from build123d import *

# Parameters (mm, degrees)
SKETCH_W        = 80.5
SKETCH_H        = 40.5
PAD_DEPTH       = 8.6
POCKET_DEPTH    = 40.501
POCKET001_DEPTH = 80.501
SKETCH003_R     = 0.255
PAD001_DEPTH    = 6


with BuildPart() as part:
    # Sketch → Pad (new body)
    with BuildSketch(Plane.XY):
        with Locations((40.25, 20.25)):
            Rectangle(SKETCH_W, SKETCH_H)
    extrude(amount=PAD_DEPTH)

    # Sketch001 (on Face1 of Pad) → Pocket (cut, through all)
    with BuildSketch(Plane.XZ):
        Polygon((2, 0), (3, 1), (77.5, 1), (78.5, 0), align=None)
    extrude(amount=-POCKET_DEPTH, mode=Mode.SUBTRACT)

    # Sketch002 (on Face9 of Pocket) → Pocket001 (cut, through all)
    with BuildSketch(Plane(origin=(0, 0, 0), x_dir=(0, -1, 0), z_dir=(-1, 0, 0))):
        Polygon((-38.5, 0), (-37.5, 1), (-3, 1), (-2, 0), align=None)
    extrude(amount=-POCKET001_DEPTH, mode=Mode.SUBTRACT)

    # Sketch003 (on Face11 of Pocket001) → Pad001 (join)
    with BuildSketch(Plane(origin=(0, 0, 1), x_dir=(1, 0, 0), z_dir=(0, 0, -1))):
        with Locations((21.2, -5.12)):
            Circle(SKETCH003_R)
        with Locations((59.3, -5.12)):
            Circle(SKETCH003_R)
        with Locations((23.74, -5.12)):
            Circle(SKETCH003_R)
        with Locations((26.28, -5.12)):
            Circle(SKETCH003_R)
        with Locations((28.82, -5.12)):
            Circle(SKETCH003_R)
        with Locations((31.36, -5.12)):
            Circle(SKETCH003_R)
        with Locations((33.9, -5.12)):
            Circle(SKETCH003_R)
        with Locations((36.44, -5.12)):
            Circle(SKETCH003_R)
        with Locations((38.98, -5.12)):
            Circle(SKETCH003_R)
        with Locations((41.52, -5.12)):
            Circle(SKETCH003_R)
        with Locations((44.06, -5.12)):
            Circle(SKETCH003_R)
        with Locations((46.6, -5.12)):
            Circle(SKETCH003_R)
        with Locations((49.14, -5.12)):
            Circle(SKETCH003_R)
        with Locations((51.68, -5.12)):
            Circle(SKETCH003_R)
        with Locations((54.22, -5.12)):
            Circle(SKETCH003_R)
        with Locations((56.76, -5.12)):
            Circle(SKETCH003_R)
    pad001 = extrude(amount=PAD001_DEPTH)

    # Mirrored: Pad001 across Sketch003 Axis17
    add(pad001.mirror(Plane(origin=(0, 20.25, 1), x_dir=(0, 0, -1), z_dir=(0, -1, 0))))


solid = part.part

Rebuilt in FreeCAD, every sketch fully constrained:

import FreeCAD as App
import Part
import Sketcher

V = App.Vector


def add_polygon(sketch, points):
    """Adds a closed chain of lines whose ends are joined by coincident constraints."""
    first, n = sketch.GeometryCount, len(points)
    for a, b in zip(points, points[1:] + points[:1]):
        sketch.addGeometry(Part.LineSegment(App.Vector(*a, 0), App.Vector(*b, 0)), False)
    for i in range(n):
        sketch.addConstraint(Sketcher.Constraint("Coincident", first + i, 2, first + (i + 1) % n, 1))

doc = App.newDocument("Part")
params = doc.addObject("Spreadsheet::Sheet", "Params")
for row, (alias, value) in enumerate([
    ("sketch1_width", "80.5 mm"),
    ("sketch1_height", "40.5 mm"),
    ("pad1_length", "8.6 mm"),
    ("sketch2_width", "76.5 mm"),
    ("sketch2_width2", "74.5 mm"),
    ("sketch3_width", "36.5 mm"),
    ("sketch3_width2", "34.5 mm"),
    ("sketch4_diameter", "0.51 mm"),
    ("pad2_length", "6 mm"),
], start=1):
    params.set(f"A{row}", alias)
    params.set(f"B{row}", "=" + value)
    params.setAlias(f"B{row}", alias)

body = doc.addObject("PartDesign::Body", "Body")

# Sketch on XY plane
sketch1 = body.newObject("Sketcher::SketchObject", "Sketch")
sketch1.AttachmentSupport = (doc.getObject("XY_Plane"), [""])
sketch1.MapMode = "FlatFace"
add_polygon(sketch1, [(0, 40), (0, 0), (80, 0), (80, 40)])  # lines 0-3
sketch1.addConstraint([
    Sketcher.Constraint("Vertical", 0),
    Sketcher.Constraint("Horizontal", 1),
    Sketcher.Constraint("Vertical", 2),
    Sketcher.Constraint("Horizontal", 3),
    Sketcher.Constraint("Coincident", 0, 2, -1, 1),
    Sketcher.Constraint("DistanceX", 1, 1, 1, 2, 80.5),
    Sketcher.Constraint("DistanceY", 0, 2, 0, 1, 40.5),
])
sketch1.setExpression("Constraints[9]", "Params.sketch1_width")
sketch1.setExpression("Constraints[10]", "Params.sketch1_height")
pad1 = body.newObject("PartDesign::Pad", "Pad")
pad1.Profile = sketch1
pad1.setExpression("Length", "Params.pad1_length")

# Sketch on XZ plane
sketch2 = body.newObject("Sketcher::SketchObject", "Sketch001")
sketch2.AttachmentSupport = (doc.getObject("XZ_Plane"), [""])
sketch2.MapMode = "FlatFace"
add_polygon(sketch2, [(3, 1), (2, 0), (78.5, 0), (77.5, 1)])  # lines 0-3
sketch2.addConstraint([
    Sketcher.Constraint("Horizontal", 1),
    Sketcher.Constraint("Horizontal", 3),
    Sketcher.Constraint("PointOnObject", 0, 2, -1),
    Sketcher.Constraint("Perpendicular", 0, 2),
    Sketcher.Constraint("Equal", 0, 2),
    Sketcher.Constraint("DistanceX", 1, 1, 1, 2, 76.5),
    Sketcher.Constraint("DistanceX", 3, 2, 3, 1, 74.5),
    Sketcher.Constraint("DistanceX", -1, 1, 0, 2, 2.0),
])
sketch2.setExpression("Constraints[9]", "Params.sketch2_width")
sketch2.setExpression("Constraints[10]", "Params.sketch2_width2")
pocket1 = body.newObject("PartDesign::Pocket", "Pocket")
pocket1.Profile = sketch2
pocket1.Type = "ThroughAll"

# Sketch on YZ plane
sketch3 = body.newObject("Sketcher::SketchObject", "Sketch002")
sketch3.AttachmentSupport = (doc.getObject("YZ_Plane"), [""])
sketch3.MapMode = "FlatFace"
add_polygon(sketch3, [(37.5, 1), (38.5, 0), (2, 0), (3, 1)])  # lines 0-3
sketch3.addConstraint([
    Sketcher.Constraint("Horizontal", 1),
    Sketcher.Constraint("Horizontal", 3),
    Sketcher.Constraint("PointOnObject", 0, 2, -1),
    Sketcher.Constraint("Perpendicular", 0, 2),
    Sketcher.Constraint("Equal", 0, 2),
    Sketcher.Constraint("DistanceX", 1, 2, 1, 1, 36.5),
    Sketcher.Constraint("DistanceX", 3, 1, 3, 2, 34.5),
    Sketcher.Constraint("DistanceX", -1, 1, 1, 2, 2.0),
])
sketch3.setExpression("Constraints[9]", "Params.sketch3_width")
sketch3.setExpression("Constraints[10]", "Params.sketch3_width2")
pocket2 = body.newObject("PartDesign::Pocket", "Pocket001")
pocket2.Profile = sketch3
pocket2.Type = "ThroughAll"
pocket2.Reversed = True

# Sketch on XY plane
sketch4 = body.newObject("Sketcher::SketchObject", "Sketch003")
sketch4.AttachmentSupport = (doc.getObject("XY_Plane"), [""])
sketch4.MapMode = "FlatFace"
sketch4.AttachmentOffset = App.Placement(V(0, 0, 1), App.Rotation())
sketch4.addGeometry([
    Part.Circle(V(21.2, 5.12, 0), V(0, 0, 1), 0.26),  # 0
    Part.Circle(V(59.3, 5.12, 0), V(0, 0, 1), 0.26),  # 1
    Part.Circle(V(23.74, 5.12, 0), V(0, 0, 1), 0.26),  # 2
    Part.Circle(V(26.28, 5.12, 0), V(0, 0, 1), 0.26),  # 3
    Part.Circle(V(28.82, 5.12, 0), V(0, 0, 1), 0.26),  # 4
    Part.Circle(V(31.36, 5.12, 0), V(0, 0, 1), 0.26),  # 5
    Part.Circle(V(33.9, 5.12, 0), V(0, 0, 1), 0.26),  # 6
    Part.Circle(V(36.44, 5.12, 0), V(0, 0, 1), 0.26),  # 7
    Part.Circle(V(38.98, 5.12, 0), V(0, 0, 1), 0.26),  # 8
    Part.Circle(V(41.52, 5.12, 0), V(0, 0, 1), 0.26),  # 9
    Part.Circle(V(44.06, 5.12, 0), V(0, 0, 1), 0.26),  # 10
    Part.Circle(V(46.6, 5.12, 0), V(0, 0, 1), 0.26),  # 11
    Part.Circle(V(49.14, 5.12, 0), V(0, 0, 1), 0.26),  # 12
    Part.Circle(V(51.68, 5.12, 0), V(0, 0, 1), 0.26),  # 13
    Part.Circle(V(54.22, 5.12, 0), V(0, 0, 1), 0.26),  # 14
    Part.Circle(V(56.76, 5.12, 0), V(0, 0, 1), 0.26),  # 15
], False)
sketch4.addConstraint([
    Sketcher.Constraint("Equal", 0, 1),
    Sketcher.Constraint("Equal", 1, 2),
    Sketcher.Constraint("Equal", 2, 3),
    Sketcher.Constraint("Equal", 3, 4),
    Sketcher.Constraint("Equal", 4, 5),
    Sketcher.Constraint("Equal", 5, 6),
    Sketcher.Constraint("Equal", 6, 7),
    Sketcher.Constraint("Equal", 7, 8),
    Sketcher.Constraint("Equal", 8, 9),
    Sketcher.Constraint("Equal", 9, 10),
    Sketcher.Constraint("Equal", 10, 11),
    Sketcher.Constraint("Equal", 11, 12),
    Sketcher.Constraint("Equal", 12, 13),
    Sketcher.Constraint("Equal", 13, 14),
    Sketcher.Constraint("Equal", 14, 15),
    Sketcher.Constraint("Horizontal", 0, 3, 1, 3),
    Sketcher.Constraint("Horizontal", 1, 3, 2, 3),
    Sketcher.Constraint("Horizontal", 2, 3, 3, 3),
    Sketcher.Constraint("Horizontal", 3, 3, 4, 3),
    Sketcher.Constraint("Horizontal", 4, 3, 5, 3),
    Sketcher.Constraint("Horizontal", 5, 3, 6, 3),
    Sketcher.Constraint("Horizontal", 6, 3, 7, 3),
    Sketcher.Constraint("Horizontal", 7, 3, 8, 3),
    Sketcher.Constraint("Horizontal", 8, 3, 9, 3),
    Sketcher.Constraint("Horizontal", 9, 3, 10, 3),
    Sketcher.Constraint("Horizontal", 10, 3, 11, 3),
    Sketcher.Constraint("Horizontal", 11, 3, 12, 3),
    Sketcher.Constraint("Horizontal", 12, 3, 13, 3),
    Sketcher.Constraint("Horizontal", 13, 3, 14, 3),
    Sketcher.Constraint("Horizontal", 14, 3, 15, 3),
    Sketcher.Constraint("Diameter", 0, 0.51),
    Sketcher.Constraint("DistanceX", -1, 1, 0, 3, 21.2),
    Sketcher.Constraint("DistanceX", -1, 1, 1, 3, 59.3),
    Sketcher.Constraint("DistanceX", -1, 1, 6, 3, 33.9),
    Sketcher.Constraint("DistanceX", -1, 1, 11, 3, 46.6),
    Sketcher.Constraint("DistanceX", 2, 3, 7, 3, 12.7),
    Sketcher.Constraint("DistanceX", 3, 3, 8, 3, 12.7),
    Sketcher.Constraint("DistanceX", 4, 3, 9, 3, 12.7),
    Sketcher.Constraint("DistanceX", 5, 3, 10, 3, 12.7),
    Sketcher.Constraint("DistanceY", -1, 1, 0, 3, 5.12),
    Sketcher.Constraint("DistanceX", -1, 1, 2, 3, 23.74),
    Sketcher.Constraint("DistanceX", -1, 1, 3, 3, 26.28),
    Sketcher.Constraint("DistanceX", -1, 1, 4, 3, 28.82),
    Sketcher.Constraint("DistanceX", -1, 1, 5, 3, 31.36),
    Sketcher.Constraint("DistanceX", -1, 1, 12, 3, 49.14),
    Sketcher.Constraint("DistanceX", -1, 1, 13, 3, 51.68),
    Sketcher.Constraint("DistanceX", -1, 1, 14, 3, 54.22),
    Sketcher.Constraint("DistanceX", -1, 1, 15, 3, 56.76),
])
sketch4.setExpression("Constraints[30]", "Params.sketch4_diameter")
pad2 = body.newObject("PartDesign::Pad", "Pad001")
pad2.Profile = sketch4
pad2.setExpression("Length", "Params.pad2_length")
pad2.Reversed = True
doc.recompute()

datumplane = body.newObject("PartDesign::Plane", "DatumPlane")
datumplane.AttachmentSupport = (doc.getObject("XZ_Plane"), [""])
datumplane.MapMode = "FlatFace"
datumplane.AttachmentOffset = App.Placement(V(0, 0, -20.25), App.Rotation())
mirrored = body.newObject("PartDesign::Mirrored", "Mirrored")
mirrored.Originals = [pad2]
mirrored.MirrorPlane = (datumplane, [""])
body.Tip = mirrored

doc.recompute()
